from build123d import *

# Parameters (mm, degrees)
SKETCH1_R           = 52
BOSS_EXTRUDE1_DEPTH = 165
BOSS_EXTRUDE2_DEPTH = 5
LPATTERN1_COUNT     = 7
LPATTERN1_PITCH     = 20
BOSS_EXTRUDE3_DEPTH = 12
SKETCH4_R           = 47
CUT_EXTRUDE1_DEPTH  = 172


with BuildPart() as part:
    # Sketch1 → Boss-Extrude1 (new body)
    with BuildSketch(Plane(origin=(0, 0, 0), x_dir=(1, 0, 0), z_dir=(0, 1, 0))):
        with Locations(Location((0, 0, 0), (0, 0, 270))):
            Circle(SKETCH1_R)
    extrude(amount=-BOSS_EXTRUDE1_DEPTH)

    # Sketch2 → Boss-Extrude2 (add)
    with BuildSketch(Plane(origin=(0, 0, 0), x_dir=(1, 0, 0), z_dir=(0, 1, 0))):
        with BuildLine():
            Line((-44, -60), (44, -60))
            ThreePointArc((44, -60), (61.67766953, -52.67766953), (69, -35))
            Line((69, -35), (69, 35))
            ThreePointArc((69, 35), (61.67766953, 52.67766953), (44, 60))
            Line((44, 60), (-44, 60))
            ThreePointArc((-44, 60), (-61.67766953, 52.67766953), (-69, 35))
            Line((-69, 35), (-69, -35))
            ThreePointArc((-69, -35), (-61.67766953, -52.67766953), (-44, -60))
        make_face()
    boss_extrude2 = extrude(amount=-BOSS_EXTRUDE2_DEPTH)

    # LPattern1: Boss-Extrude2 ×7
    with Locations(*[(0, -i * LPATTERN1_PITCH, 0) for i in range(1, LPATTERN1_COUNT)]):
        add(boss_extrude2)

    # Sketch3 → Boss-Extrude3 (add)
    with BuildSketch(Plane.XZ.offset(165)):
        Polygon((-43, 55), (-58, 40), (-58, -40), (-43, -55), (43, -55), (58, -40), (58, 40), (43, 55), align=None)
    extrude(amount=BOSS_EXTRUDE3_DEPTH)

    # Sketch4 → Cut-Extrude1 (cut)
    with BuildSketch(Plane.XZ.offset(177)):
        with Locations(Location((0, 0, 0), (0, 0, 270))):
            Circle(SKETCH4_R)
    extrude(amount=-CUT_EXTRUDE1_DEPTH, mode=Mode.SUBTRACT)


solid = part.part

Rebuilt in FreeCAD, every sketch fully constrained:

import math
import FreeCAD as App
import Part
import Sketcher


def add_polygon(sketch, points):
    """Adds a closed chain of lines whose ends are joined by coincident constraints."""
    first, n = sketch.GeometryCount, len(points)
    for a, b in zip(points, points[1:] + points[:1]):
        sketch.addGeometry(Part.LineSegment(App.Vector(*a, 0), App.Vector(*b, 0)), False)
    for i in range(n):
        sketch.addConstraint(Sketcher.Constraint("Coincident", first + i, 2, first + (i + 1) % n, 1))

doc = App.newDocument("Part")
params = doc.addObject("Spreadsheet::Sheet", "Params")
for row, (alias, value) in enumerate([
    ("sketch1_diameter", "104 mm"),
    ("pad1_length", "165 mm"),
    ("sketch2_radius", "25 mm"),
    ("sketch2_width", "88 mm"),
    ("sketch2_height", "70 mm"),
    ("pad2_length", "5 mm"),
    ("linearpattern_pitch", "20 mm"),
    ("sketch3_width", "86 mm"),
    ("sketch3_height", "80 mm"),
    ("pad3_length", "12 mm"),
    ("sketch4_diameter", "94 mm"),
    ("pocket1_length", "172 mm"),
], start=1):
    params.set(f"A{row}", alias)
    params.set(f"B{row}", "=" + value)
    params.setAlias(f"B{row}", alias)

body = doc.addObject("PartDesign::Body", "Body")

sketch1 = doc.addObject("Sketcher::SketchObject", "Sketch")
body.addObject(sketch1)
sketch1.AttachmentSupport = (doc.XZ_Plane, [""])
sketch1.MapMode = "FlatFace"
sketch1.addGeometry(Part.Circle(App.Vector(0, 0, 0), App.Vector(0, 0, 1), 52), False)
sketch1.addConstraint(Sketcher.Constraint("Coincident", 0, 3, -1, 1))
sketch1.addConstraint(Sketcher.Constraint("Diameter", 0, 104.0))
sketch1.setExpression("Constraints[1]", "Params.sketch1_diameter")
pad1 = doc.addObject("PartDesign::Pad", "Pad")
body.addObject(pad1)
pad1.Profile = sketch1
pad1.setExpression("Length", "Params.pad1_length")

sketch2 = doc.addObject("Sketcher::SketchObject", "Sketch001")
body.addObject(sketch2)
sketch2.AttachmentSupport = (doc.XZ_Plane, [""])
sketch2.MapMode = "FlatFace"
sketch2.addGeometry(Part.LineSegment(App.Vector(-44, 60, 0), App.Vector(44, 60, 0)), False)
sketch2.addGeometry(Part.ArcOfCircle(Part.Circle(App.Vector(44, 35, 0), App.Vector(0, 0, 1), 25), math.radians(0), math.radians(90)), False)
sketch2.addGeometry(Part.LineSegment(App.Vector(69, 35, 0), App.Vector(69, -35, 0)), False)
sketch2.addGeometry(Part.ArcOfCircle(Part.Circle(App.Vector(44, -35, 0), App.Vector(0, 0, 1), 25), math.radians(-90), math.radians(0)), False)
sketch2.addGeometry(Part.LineSegment(App.Vector(44, -60, 0), App.Vector(-44, -60, 0)), False)
sketch2.addGeometry(Part.ArcOfCircle(Part.Circle(App.Vector(-44, -35, 0), App.Vector(0, 0, 1), 25), math.radians(180), math.radians(270)), False)
sketch2.addGeometry(Part.LineSegment(App.Vector(-69, -35, 0), App.Vector(-69, 35, 0)), False)
sketch2.addGeometry(Part.ArcOfCircle(Part.Circle(App.Vector(-44, 35, 0), App.Vector(0, 0, 1), 25), math.radians(90), math.radians(180)), False)
sketch2.addConstraint(Sketcher.Constraint("Tangent", 0, 2, 1, 2))
sketch2.addConstraint(Sketcher.Constraint("Tangent", 1, 1, 2, 1))
sketch2.addConstraint(Sketcher.Constraint("Tangent", 2, 2, 3, 2))
sketch2.addConstraint(Sketcher.Constraint("Tangent", 3, 1, 4, 1))
sketch2.addConstraint(Sketcher.Constraint("Tangent", 4, 2, 5, 2))
sketch2.addConstraint(Sketcher.Constraint("Tangent", 5, 1, 6, 1))
sketch2.addConstraint(Sketcher.Constraint("Tangent", 6, 2, 7, 2))
sketch2.addConstraint(Sketcher.Constraint("Tangent", 7, 1, 0, 1))
sketch2.addConstraint(Sketcher.Constraint("Horizontal", 0))
sketch2.addConstraint(Sketcher.Constraint("Vertical", 2))
sketch2.addConstraint(Sketcher.Constraint("Horizontal", 4))
sketch2.addConstraint(Sketcher.Constraint("Vertical", 6))
sketch2.addConstraint(Sketcher.Constraint("Equal", 1, 3))
sketch2.addConstraint(Sketcher.Constraint("Equal", 3, 5))
sketch2.addConstraint(Sketcher.Constraint("Equal", 5, 7))
sketch2.addConstraint(Sketcher.Constraint("Symmetric", 1, 3, 5, 3, -1, 1))
sketch2.addConstraint(Sketcher.Constraint("Radius", 1, 25.0))
sketch2.addConstraint(Sketcher.Constraint("DistanceX", 0, 1, 0, 2, 88.0))
sketch2.addConstraint(Sketcher.Constraint("DistanceY", 2, 2, 2, 1, 70.0))
sketch2.setExpression("Constraints[16]", "Params.sketch2_radius")
sketch2.setExpression("Constraints[17]", "Params.sketch2_width")
sketch2.setExpression("Constraints[18]", "Params.sketch2_height")
pad2 = doc.addObject("PartDesign::Pad", "Pad001")
body.addObject(pad2)
pad2.Profile = sketch2
pad2.setExpression("Length", "Params.pad2_length")
doc.recompute()

linearpattern = doc.addObject("PartDesign::LinearPattern", "LinearPattern")
body.addObject(linearpattern)
linearpattern.Originals = [pad2]
linearpattern.Direction = (doc.Y_Axis, [""])
linearpattern.Mode = "offset"
linearpattern.setExpression("Offset", "Params.linearpattern_pitch")
linearpattern.Occurrences = 7
linearpattern.Reversed = True
body.Tip = linearpattern

sketch3 = doc.addObject("Sketcher::SketchObject", "Sketch002")
body.addObject(sketch3)
sketch3.AttachmentSupport = (doc.XZ_Plane, [""])
sketch3.MapMode = "FlatFace"
sketch3.AttachmentOffset = App.Placement(App.Vector(0, 0, 165), App.Rotation())
add_polygon(sketch3, [(-43, 55), (-58, 40), (-58, -40), (-43, -55), (43, -55), (58, -40), (58, 40), (43, 55)])
sketch3.addConstraint(Sketcher.Constraint("Vertical", 1))
sketch3.addConstraint(Sketcher.Constraint("Horizontal", 3))
sketch3.addConstraint(Sketcher.Constraint("Vertical", 5))
sketch3.addConstraint(Sketcher.Constraint("Horizontal", 7))
sketch3.addConstraint(Sketcher.Constraint("Symmetric", 0, 2, 4, 2, -1, 1))
sketch3.addConstraint(Sketcher.Constraint("Symmetric", 2, 2, 6, 2, -1, 1))
sketch3.addConstraint(Sketcher.Constraint("Perpendicular", 0, 2))
sketch3.addConstraint(Sketcher.Constraint("Perpendicular", 2, 4))
sketch3.addConstraint(Sketcher.Constraint("Perpendicular", 4, 6))
sketch3.addConstraint(Sketcher.Constraint("Horizontal", 1, 2, 4, 2))
sketch3.addConstraint(Sketcher.Constraint("Vertical", 3, 2, 6, 2))
sketch3.addConstraint(Sketcher.Constraint("DistanceX", 3, 1, 3, 2, 86.0))
sketch3.addConstraint(Sketcher.Constraint("DistanceY", 1, 2, 1, 1, 80.0))
sketch3.addConstraint(Sketcher.Constraint("DistanceX", 0, 2, -1, 1, 58.0))
sketch3.setExpression("Constraints[19]", "Params.sketch3_width")
sketch3.setExpression("Constraints[20]", "Params.sketch3_height")
pad3 = doc.addObject("PartDesign::Pad", "Pad002")
body.addObject(pad3)
pad3.Profile = sketch3
pad3.setExpression("Length", "Params.pad3_length")

sketch4 = doc.addObject("Sketcher::SketchObject", "Sketch003")
body.addObject(sketch4)
sketch4.AttachmentSupport = (doc.XZ_Plane, [""])
sketch4.MapMode = "FlatFace"
sketch4.AttachmentOffset = App.Placement(App.Vector(0, 0, 177), App.Rotation())
sketch4.addGeometry(Part.Circle(App.Vector(0, 0, 0), App.Vector(0, 0, 1), 47), False)
sketch4.addConstraint(Sketcher.Constraint("Coincident", 0, 3, -1, 1))
sketch4.addConstraint(Sketcher.Constraint("Diameter", 0, 94.0))
sketch4.setExpression("Constraints[1]", "Params.sketch4_diameter")
pocket1 = doc.addObject("PartDesign::Pocket", "Pocket")
body.addObject(pocket1)
pocket1.Profile = sketch4
pocket1.setExpression("Length", "Params.pocket1_length")

doc.recompute()
